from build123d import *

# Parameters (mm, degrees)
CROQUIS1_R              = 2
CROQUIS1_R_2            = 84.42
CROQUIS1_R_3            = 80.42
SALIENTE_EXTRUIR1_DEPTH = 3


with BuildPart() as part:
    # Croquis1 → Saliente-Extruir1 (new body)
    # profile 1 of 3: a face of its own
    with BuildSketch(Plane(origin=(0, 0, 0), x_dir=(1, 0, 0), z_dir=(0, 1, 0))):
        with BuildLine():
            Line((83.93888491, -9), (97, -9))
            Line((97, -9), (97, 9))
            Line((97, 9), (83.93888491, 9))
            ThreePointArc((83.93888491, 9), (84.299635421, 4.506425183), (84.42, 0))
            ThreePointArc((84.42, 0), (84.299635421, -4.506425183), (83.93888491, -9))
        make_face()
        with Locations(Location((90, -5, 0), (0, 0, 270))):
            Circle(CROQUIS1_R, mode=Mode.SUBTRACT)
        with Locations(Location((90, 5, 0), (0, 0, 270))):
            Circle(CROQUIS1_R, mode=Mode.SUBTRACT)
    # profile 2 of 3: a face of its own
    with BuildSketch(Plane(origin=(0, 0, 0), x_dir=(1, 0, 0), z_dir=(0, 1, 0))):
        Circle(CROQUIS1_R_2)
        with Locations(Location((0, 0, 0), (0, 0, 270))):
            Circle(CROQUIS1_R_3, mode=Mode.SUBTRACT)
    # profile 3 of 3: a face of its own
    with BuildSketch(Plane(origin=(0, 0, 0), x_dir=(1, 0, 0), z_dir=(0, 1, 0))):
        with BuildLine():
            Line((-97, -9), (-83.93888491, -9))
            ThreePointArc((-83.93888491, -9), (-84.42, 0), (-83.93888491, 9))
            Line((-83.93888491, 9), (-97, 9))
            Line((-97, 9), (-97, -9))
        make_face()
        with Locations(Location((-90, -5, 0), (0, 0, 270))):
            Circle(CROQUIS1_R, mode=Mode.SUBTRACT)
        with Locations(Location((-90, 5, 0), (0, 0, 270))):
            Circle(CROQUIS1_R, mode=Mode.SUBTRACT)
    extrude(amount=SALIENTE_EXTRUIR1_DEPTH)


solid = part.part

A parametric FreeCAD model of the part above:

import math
import FreeCAD as App
import Part
import Sketcher

doc = App.newDocument("Part")
body = doc.addObject("PartDesign::Body", "Body")

# Sketch on XZ plane
sketch1 = doc.addObject("Sketcher::SketchObject", "Sketch")
body.addObject(sketch1)
sketch1.AttachmentSupport = (doc.XZ_Plane, [""])
sketch1.MapMode = "FlatFace"
sketch1.addGeometry([
    Part.LineSegment(App.Vector(83.9, 9, 0), App.Vector(97, 9, 0)),  # 0
    Part.LineSegment(App.Vector(97, 9, 0), App.Vector(97, -9, 0)),  # 1
    Part.LineSegment(App.Vector(97, -9, 0), App.Vector(83.9, -9, 0)),  # 2
    Part.ArcOfCircle(Part.Circle(App.Vector(0, 0, 0), App.Vector(0, 0, 1), 84.4), math.radians(-174), math.radians(-6)),  # 3
    Part.LineSegment(App.Vector(-83.9, -9, 0), App.Vector(-97, -9, 0)),  # 4
    Part.LineSegment(App.Vector(-97, -9, 0), App.Vector(-97, 9, 0)),  # 5
    Part.LineSegment(App.Vector(-97, 9, 0), App.Vector(-83.9, 9, 0)),  # 6
    Part.ArcOfCircle(Part.Circle(App.Vector(0, 0, 0), App.Vector(0, 0, 1), 84.4), math.radians(6), math.radians(174)),  # 7
    Part.Circle(App.Vector(90, 5, 0), App.Vector(0, 0, 1), 2),  # 8
    Part.Circle(App.Vector(90, -5, 0), App.Vector(0, 0, 1), 2),  # 9
    Part.Circle(App.Vector(0, 0, 0), App.Vector(0, 0, 1), 80.4),  # 10
    Part.Circle(App.Vector(-90, -5, 0), App.Vector(0, 0, 1), 2),  # 11
    Part.Circle(App.Vector(-90, 5, 0), App.Vector(0, 0, 1), 2),  # 12
], False)
sketch1.addConstraint([
    Sketcher.Constraint("Coincident", 0, 2, 1, 1),
    Sketcher.Constraint("Coincident", 1, 2, 2, 1),
    Sketcher.Constraint("Coincident", 2, 2, 3, 2),
    Sketcher.Constraint("Coincident", 3, 1, 4, 1),
    Sketcher.Constraint("Coincident", 4, 2, 5, 1),
    Sketcher.Constraint("Coincident", 5, 2, 6, 1),
    Sketcher.Constraint("Coincident", 6, 2, 7, 2),
    Sketcher.Constraint("Coincident", 7, 1, 0, 1),
    Sketcher.Constraint("Horizontal", 0),
    Sketcher.Constraint("Vertical", 1),
    Sketcher.Constraint("Horizontal", 2),
    Sketcher.Constraint("Horizontal", 4),
    Sketcher.Constraint("Vertical", 5),
    Sketcher.Constraint("Horizontal", 6),
    Sketcher.Constraint("Coincident", 3, 3, -1, 1),
    Sketcher.Constraint("Coincident", 7, 3, -1, 1),
    Sketcher.Constraint("Coincident", 10, 3, -1, 1),
    Sketcher.Constraint("Equal", 3, 7),
    Sketcher.Constraint("Equal", 8, 9),
    Sketcher.Constraint("Equal", 9, 11),
    Sketcher.Constraint("Equal", 11, 12),
    Sketcher.Constraint("Symmetric", 8, 3, 11, 3, -1, 1),
    Sketcher.Constraint("Symmetric", 9, 3, 12, 3, -1, 1),
    Sketcher.Constraint("Symmetric", 0, 2, 4, 2, -1, 1),
    Sketcher.Constraint("Symmetric", 9, 3, 11, 3, -2),
    Sketcher.Constraint("Horizontal", 2, 2, 3, 1),
    Sketcher.Constraint("Horizontal", 0, 2, 5, 2),
    Sketcher.Constraint("Diameter", 8, 4.0),
    Sketcher.Constraint("Diameter", 10, 160.84),
    Sketcher.Constraint("DistanceY", 1, 2, 1, 1, 18.0),
    Sketcher.Constraint("Radius", 3, 84.42),
    Sketcher.Constraint("DistanceX", -1, 1, 8, 3, 90.0),
    Sketcher.Constraint("DistanceY", -1, 1, 8, 3, 5.0),
    Sketcher.Constraint("DistanceX", -1, 1, 0, 2, 97.0),
])
pad1 = doc.addObject("PartDesign::Pad", "Pad")
body.addObject(pad1)
pad1.Profile = sketch1
pad1.Length = 3
pad1.Reversed = True

doc.recompute()
